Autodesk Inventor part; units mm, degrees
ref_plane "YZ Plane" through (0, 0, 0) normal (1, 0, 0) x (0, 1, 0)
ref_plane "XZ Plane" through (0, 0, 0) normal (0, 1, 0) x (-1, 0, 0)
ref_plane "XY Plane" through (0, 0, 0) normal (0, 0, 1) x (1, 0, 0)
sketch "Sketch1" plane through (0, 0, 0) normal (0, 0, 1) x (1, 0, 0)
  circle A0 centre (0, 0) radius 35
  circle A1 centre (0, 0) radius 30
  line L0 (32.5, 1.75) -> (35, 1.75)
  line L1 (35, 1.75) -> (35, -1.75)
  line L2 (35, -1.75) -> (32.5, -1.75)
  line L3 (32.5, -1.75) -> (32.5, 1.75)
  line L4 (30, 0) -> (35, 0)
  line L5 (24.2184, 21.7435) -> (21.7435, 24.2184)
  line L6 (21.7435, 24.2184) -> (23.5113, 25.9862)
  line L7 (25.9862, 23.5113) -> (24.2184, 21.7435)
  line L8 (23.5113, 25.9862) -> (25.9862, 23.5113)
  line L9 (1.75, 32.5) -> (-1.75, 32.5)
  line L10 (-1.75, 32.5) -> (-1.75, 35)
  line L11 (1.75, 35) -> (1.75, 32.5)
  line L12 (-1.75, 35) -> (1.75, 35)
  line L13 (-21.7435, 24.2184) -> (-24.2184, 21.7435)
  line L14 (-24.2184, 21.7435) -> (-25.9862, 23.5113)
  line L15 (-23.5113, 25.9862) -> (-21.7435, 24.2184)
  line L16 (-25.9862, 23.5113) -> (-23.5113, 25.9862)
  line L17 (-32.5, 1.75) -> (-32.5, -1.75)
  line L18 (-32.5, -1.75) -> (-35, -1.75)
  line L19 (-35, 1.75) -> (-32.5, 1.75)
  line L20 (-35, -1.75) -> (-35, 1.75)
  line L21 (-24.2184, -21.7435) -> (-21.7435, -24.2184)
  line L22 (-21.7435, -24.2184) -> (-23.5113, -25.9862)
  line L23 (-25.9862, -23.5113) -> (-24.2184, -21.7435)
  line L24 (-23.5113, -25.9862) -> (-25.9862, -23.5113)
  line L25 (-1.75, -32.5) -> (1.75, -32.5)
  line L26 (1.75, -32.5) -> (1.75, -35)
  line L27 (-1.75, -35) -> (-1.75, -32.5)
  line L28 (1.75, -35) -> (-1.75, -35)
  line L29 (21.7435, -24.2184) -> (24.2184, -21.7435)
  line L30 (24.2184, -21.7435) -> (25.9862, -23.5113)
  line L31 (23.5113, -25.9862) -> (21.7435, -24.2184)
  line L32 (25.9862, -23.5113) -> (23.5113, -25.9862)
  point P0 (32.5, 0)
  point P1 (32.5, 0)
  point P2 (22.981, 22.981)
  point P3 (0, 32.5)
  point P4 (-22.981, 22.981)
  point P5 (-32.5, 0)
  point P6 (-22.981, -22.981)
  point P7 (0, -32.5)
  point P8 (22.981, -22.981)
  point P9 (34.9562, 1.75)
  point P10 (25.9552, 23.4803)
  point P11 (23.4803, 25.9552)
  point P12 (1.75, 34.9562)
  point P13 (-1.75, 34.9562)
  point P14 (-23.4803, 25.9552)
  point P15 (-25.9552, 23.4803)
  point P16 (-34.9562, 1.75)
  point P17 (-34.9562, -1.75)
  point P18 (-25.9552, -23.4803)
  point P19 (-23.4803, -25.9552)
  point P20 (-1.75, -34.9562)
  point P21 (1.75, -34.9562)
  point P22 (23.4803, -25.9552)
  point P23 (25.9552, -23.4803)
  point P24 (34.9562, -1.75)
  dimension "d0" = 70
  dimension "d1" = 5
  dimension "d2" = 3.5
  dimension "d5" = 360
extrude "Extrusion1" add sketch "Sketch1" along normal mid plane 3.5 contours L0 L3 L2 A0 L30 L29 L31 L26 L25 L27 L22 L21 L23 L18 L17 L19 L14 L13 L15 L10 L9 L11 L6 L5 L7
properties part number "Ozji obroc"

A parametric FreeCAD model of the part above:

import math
import FreeCAD as App
import Part
import Sketcher

V = App.Vector
Q = App.Units.Quantity

doc = App.newDocument("Part")
params = doc.addObject("Spreadsheet::Sheet", "Params")
for row, (alias, value) in enumerate([
    ("sketch1_radius", "35 mm"),
    ("sketch1_diameter", "60 mm"),
    ("sketch1_width", "3.5 mm"),
    ("sketch1_length", "3.5 mm"),
    ("pad1_length", "3.5 mm"),
], start=1):
    params.set(f"A{row}", alias)
    params.set(f"B{row}", "=" + value)
    params.setAlias(f"B{row}", alias)

body = doc.addObject("PartDesign::Body", "Body")

sketch1 = doc.addObject("Sketcher::SketchObject", "Sketch")
body.addObject(sketch1)
sketch1.AttachmentSupport = (doc.XY_Plane, [""])
sketch1.MapMode = "FlatFace"
sketch1.addGeometry([
    Part.LineSegment(V(32.5, 1.8, 0), V(35, 1.8, 0)),
    Part.ArcOfCircle(Part.Circle(V(0, 0, 0), V(0, 0, 1), 35), math.radians(3), math.radians(42)),
    Part.LineSegment(V(26, 23.5, 0), V(24.2, 21.7, 0)),
    Part.LineSegment(V(24.2, 21.7, 0), V(21.7, 24.2, 0)),
    Part.LineSegment(V(21.7, 24.2, 0), V(23.5, 26, 0)),
    Part.ArcOfCircle(Part.Circle(V(0, 0, 0), V(0, 0, 1), 35), math.radians(48), math.radians(87)),
    Part.LineSegment(V(1.8, 35, 0), V(1.8, 32.5, 0)),
    Part.LineSegment(V(1.8, 32.5, 0), V(-1.8, 32.5, 0)),
    Part.LineSegment(V(-1.8, 32.5, 0), V(-1.8, 35, 0)),
    Part.ArcOfCircle(Part.Circle(V(0, 0, 0), V(0, 0, 1), 35), math.radians(93), math.radians(132)),
    Part.LineSegment(V(-23.5, 26, 0), V(-21.7, 24.2, 0)),
    Part.LineSegment(V(-21.7, 24.2, 0), V(-24.2, 21.7, 0)),
    Part.LineSegment(V(-24.2, 21.7, 0), V(-26, 23.5, 0)),
    Part.ArcOfCircle(Part.Circle(V(0, 0, 0), V(0, 0, 1), 35), math.radians(138), math.radians(177)),
    Part.LineSegment(V(-35, 1.8, 0), V(-32.5, 1.8, 0)),
    Part.LineSegment(V(-32.5, 1.8, 0), V(-32.5, -1.8, 0)),
    Part.LineSegment(V(-32.5, -1.8, 0), V(-35, -1.8, 0)),
    Part.ArcOfCircle(Part.Circle(V(0, 0, 0), V(0, 0, 1), 35), math.radians(-177), math.radians(-138)),
    Part.LineSegment(V(-26, -23.5, 0), V(-24.2, -21.7, 0)),
    Part.LineSegment(V(-24.2, -21.7, 0), V(-21.7, -24.2, 0)),
    Part.LineSegment(V(-21.7, -24.2, 0), V(-23.5, -26, 0)),
    Part.ArcOfCircle(Part.Circle(V(0, 0, 0), V(0, 0, 1), 35), math.radians(-132), math.radians(-93)),
    Part.LineSegment(V(-1.8, -35, 0), V(-1.8, -32.5, 0)),
    Part.LineSegment(V(-1.8, -32.5, 0), V(1.8, -32.5, 0)),
    Part.LineSegment(V(1.8, -32.5, 0), V(1.8, -35, 0)),
    Part.ArcOfCircle(Part.Circle(V(0, 0, 0), V(0, 0, 1), 35), math.radians(-87), math.radians(-48)),
    Part.LineSegment(V(23.5, -26, 0), V(21.7, -24.2, 0)),
    Part.LineSegment(V(21.7, -24.2, 0), V(24.2, -21.7, 0)),
    Part.LineSegment(V(24.2, -21.7, 0), V(26, -23.5, 0)),
    Part.ArcOfCircle(Part.Circle(V(0, 0, 0), V(0, 0, 1), 35), math.radians(-42), math.radians(-3)),
    Part.LineSegment(V(35, -1.8, 0), V(32.5, -1.8, 0)),
    Part.LineSegment(V(32.5, -1.8, 0), V(32.5, 0, 0)),
    Part.LineSegment(V(32.5, 0, 0), V(32.5, 1.8, 0)),
    Part.Circle(V(0, 0, 0), V(0, 0, 1), 30),
], False)
sketch1.addConstraint([
    Sketcher.Constraint("Coincident", 0, 2, 1, 1),
    Sketcher.Constraint("Coincident", 1, 2, 2, 1),
    Sketcher.Constraint("Coincident", 2, 2, 3, 1),
    Sketcher.Constraint("Coincident", 3, 2, 4, 1),
    Sketcher.Constraint("Coincident", 4, 2, 5, 1),
    Sketcher.Constraint("Coincident", 5, 2, 6, 1),
    Sketcher.Constraint("Coincident", 6, 2, 7, 1),
    Sketcher.Constraint("Coincident", 7, 2, 8, 1),
    Sketcher.Constraint("Coincident", 8, 2, 9, 1),
    Sketcher.Constraint("Coincident", 9, 2, 10, 1),
    Sketcher.Constraint("Coincident", 10, 2, 11, 1),
    Sketcher.Constraint("Coincident", 11, 2, 12, 1),
    Sketcher.Constraint("Coincident", 12, 2, 13, 1),
    Sketcher.Constraint("Coincident", 13, 2, 14, 1),
    Sketcher.Constraint("Coincident", 14, 2, 15, 1),
    Sketcher.Constraint("Coincident", 15, 2, 16, 1),
    Sketcher.Constraint("Coincident", 16, 2, 17, 1),
    Sketcher.Constraint("Coincident", 17, 2, 18, 1),
    Sketcher.Constraint("Coincident", 18, 2, 19, 1),
    Sketcher.Constraint("Coincident", 19, 2, 20, 1),
    Sketcher.Constraint("Coincident", 20, 2, 21, 1),
    Sketcher.Constraint("Coincident", 21, 2, 22, 1),
    Sketcher.Constraint("Coincident", 22, 2, 23, 1),
    Sketcher.Constraint("Coincident", 23, 2, 24, 1),
    Sketcher.Constraint("Coincident", 24, 2, 25, 1),
    Sketcher.Constraint("Coincident", 25, 2, 26, 1),
    Sketcher.Constraint("Coincident", 26, 2, 27, 1),
    Sketcher.Constraint("Coincident", 27, 2, 28, 1),
    Sketcher.Constraint("Coincident", 28, 2, 29, 1),
    Sketcher.Constraint("Coincident", 29, 2, 30, 1),
    Sketcher.Constraint("Coincident", 30, 2, 31, 1),
    Sketcher.Constraint("Coincident", 31, 2, 32, 1),
    Sketcher.Constraint("Coincident", 32, 2, 0, 1),
    Sketcher.Constraint("Horizontal", 0),
    Sketcher.Constraint("Vertical", 6),
    Sketcher.Constraint("Horizontal", 7),
    Sketcher.Constraint("Vertical", 8),
    Sketcher.Constraint("Horizontal", 14),
    Sketcher.Constraint("Vertical", 15),
    Sketcher.Constraint("Horizontal", 16),
    Sketcher.Constraint("Vertical", 22),
    Sketcher.Constraint("Horizontal", 23),
    Sketcher.Constraint("Vertical", 24),
    Sketcher.Constraint("Horizontal", 30),
    Sketcher.Constraint("Vertical", 31),
    Sketcher.Constraint("Vertical", 32),
    Sketcher.Constraint("Coincident", 1, 3, -1, 1),
    Sketcher.Constraint("Coincident", 5, 3, -1, 1),
    Sketcher.Constraint("Coincident", 9, 3, -1, 1),
    Sketcher.Constraint("Coincident", 13, 3, -1, 1),
    Sketcher.Constraint("Coincident", 17, 3, -1, 1),
    Sketcher.Constraint("Coincident", 21, 3, -1, 1),
    Sketcher.Constraint("Coincident", 25, 3, -1, 1),
    Sketcher.Constraint("Coincident", 29, 3, -1, 1),
    Sketcher.Constraint("Coincident", 33, 3, -1, 1),
    Sketcher.Constraint("Equal", 1, 5),
    Sketcher.Constraint("Equal", 5, 9),
    Sketcher.Constraint("Equal", 9, 13),
    Sketcher.Constraint("Equal", 13, 17),
    Sketcher.Constraint("Equal", 17, 21),
    Sketcher.Constraint("Equal", 21, 25),
    Sketcher.Constraint("Equal", 25, 29),
    Sketcher.Constraint("Symmetric", 2, 2, 18, 2, -1, 1),
    Sketcher.Constraint("Symmetric", 3, 2, 19, 2, -1, 1),
    Sketcher.Constraint("Symmetric", 6, 2, 22, 2, -1, 1),
    Sketcher.Constraint("Symmetric", 10, 2, 26, 2, -1, 1),
    Sketcher.Constraint("Symmetric", 11, 2, 27, 2, -1, 1),
    Sketcher.Constraint("Symmetric", 14, 2, 30, 2, -1, 1),
    Sketcher.Constraint("Symmetric", 3, 2, 10, 2, -2),
    Sketcher.Constraint("Symmetric", 2, 2, 11, 2, -2),
    Sketcher.Constraint("PointOnObject", 31, 2, -1),
    Sketcher.Constraint("Perpendicular", 2, 3),
    Sketcher.Constraint("Perpendicular", 3, 4),
    Sketcher.Constraint("Perpendicular", 4, 10),
    Sketcher.Constraint("Perpendicular", 10, 11),
    Sketcher.Constraint("Perpendicular", 11, 12),
    Sketcher.Constraint("Perpendicular", 12, 18),
    Sketcher.Constraint("Perpendicular", 19, 20),
    Sketcher.Constraint("Perpendicular", 20, 26),
    Sketcher.Constraint("Perpendicular", 27, 28),
    Sketcher.Constraint("Horizontal", 5, 2, 8, 2),
    Sketcher.Constraint("Horizontal", 0, 2, 13, 2),
    Sketcher.Constraint("Horizontal", 21, 2, 24, 2),
    Sketcher.Constraint("Horizontal", 16, 2, 29, 2),
    Sketcher.Constraint("Equal", 30, 6),
    Sketcher.Constraint("Equal", 23, 15),
    Sketcher.Constraint("Equal", 2, 4),
    Sketcher.Constraint("Radius", 1, Q("35 mm")),
    Sketcher.Constraint("Diameter", 33, Q("60 mm")),
    Sketcher.Constraint("DistanceX", 7, 2, 7, 1, Q("3.5 mm")),
    Sketcher.Constraint("Distance", 3, Q("3.5 mm")),
    Sketcher.Constraint("DistanceY", -1, 1, 6, 2, Q("32.5 mm")),
    Sketcher.Constraint("DistanceY", 1, 2, 3, 2, Q("0.738 mm")),
])
sketch1.setExpression("Constraints[87]", "Params.sketch1_radius")
sketch1.setExpression("Constraints[88]", "Params.sketch1_diameter")
sketch1.setExpression("Constraints[89]", "Params.sketch1_width")
sketch1.setExpression("Constraints[90]", "Params.sketch1_length")
pad1 = doc.addObject("PartDesign::Pad", "Pad")
body.addObject(pad1)
pad1.Profile = sketch1
pad1.setExpression("Length", "Params.pad1_length")
pad1.Midplane = True

doc.recompute()
